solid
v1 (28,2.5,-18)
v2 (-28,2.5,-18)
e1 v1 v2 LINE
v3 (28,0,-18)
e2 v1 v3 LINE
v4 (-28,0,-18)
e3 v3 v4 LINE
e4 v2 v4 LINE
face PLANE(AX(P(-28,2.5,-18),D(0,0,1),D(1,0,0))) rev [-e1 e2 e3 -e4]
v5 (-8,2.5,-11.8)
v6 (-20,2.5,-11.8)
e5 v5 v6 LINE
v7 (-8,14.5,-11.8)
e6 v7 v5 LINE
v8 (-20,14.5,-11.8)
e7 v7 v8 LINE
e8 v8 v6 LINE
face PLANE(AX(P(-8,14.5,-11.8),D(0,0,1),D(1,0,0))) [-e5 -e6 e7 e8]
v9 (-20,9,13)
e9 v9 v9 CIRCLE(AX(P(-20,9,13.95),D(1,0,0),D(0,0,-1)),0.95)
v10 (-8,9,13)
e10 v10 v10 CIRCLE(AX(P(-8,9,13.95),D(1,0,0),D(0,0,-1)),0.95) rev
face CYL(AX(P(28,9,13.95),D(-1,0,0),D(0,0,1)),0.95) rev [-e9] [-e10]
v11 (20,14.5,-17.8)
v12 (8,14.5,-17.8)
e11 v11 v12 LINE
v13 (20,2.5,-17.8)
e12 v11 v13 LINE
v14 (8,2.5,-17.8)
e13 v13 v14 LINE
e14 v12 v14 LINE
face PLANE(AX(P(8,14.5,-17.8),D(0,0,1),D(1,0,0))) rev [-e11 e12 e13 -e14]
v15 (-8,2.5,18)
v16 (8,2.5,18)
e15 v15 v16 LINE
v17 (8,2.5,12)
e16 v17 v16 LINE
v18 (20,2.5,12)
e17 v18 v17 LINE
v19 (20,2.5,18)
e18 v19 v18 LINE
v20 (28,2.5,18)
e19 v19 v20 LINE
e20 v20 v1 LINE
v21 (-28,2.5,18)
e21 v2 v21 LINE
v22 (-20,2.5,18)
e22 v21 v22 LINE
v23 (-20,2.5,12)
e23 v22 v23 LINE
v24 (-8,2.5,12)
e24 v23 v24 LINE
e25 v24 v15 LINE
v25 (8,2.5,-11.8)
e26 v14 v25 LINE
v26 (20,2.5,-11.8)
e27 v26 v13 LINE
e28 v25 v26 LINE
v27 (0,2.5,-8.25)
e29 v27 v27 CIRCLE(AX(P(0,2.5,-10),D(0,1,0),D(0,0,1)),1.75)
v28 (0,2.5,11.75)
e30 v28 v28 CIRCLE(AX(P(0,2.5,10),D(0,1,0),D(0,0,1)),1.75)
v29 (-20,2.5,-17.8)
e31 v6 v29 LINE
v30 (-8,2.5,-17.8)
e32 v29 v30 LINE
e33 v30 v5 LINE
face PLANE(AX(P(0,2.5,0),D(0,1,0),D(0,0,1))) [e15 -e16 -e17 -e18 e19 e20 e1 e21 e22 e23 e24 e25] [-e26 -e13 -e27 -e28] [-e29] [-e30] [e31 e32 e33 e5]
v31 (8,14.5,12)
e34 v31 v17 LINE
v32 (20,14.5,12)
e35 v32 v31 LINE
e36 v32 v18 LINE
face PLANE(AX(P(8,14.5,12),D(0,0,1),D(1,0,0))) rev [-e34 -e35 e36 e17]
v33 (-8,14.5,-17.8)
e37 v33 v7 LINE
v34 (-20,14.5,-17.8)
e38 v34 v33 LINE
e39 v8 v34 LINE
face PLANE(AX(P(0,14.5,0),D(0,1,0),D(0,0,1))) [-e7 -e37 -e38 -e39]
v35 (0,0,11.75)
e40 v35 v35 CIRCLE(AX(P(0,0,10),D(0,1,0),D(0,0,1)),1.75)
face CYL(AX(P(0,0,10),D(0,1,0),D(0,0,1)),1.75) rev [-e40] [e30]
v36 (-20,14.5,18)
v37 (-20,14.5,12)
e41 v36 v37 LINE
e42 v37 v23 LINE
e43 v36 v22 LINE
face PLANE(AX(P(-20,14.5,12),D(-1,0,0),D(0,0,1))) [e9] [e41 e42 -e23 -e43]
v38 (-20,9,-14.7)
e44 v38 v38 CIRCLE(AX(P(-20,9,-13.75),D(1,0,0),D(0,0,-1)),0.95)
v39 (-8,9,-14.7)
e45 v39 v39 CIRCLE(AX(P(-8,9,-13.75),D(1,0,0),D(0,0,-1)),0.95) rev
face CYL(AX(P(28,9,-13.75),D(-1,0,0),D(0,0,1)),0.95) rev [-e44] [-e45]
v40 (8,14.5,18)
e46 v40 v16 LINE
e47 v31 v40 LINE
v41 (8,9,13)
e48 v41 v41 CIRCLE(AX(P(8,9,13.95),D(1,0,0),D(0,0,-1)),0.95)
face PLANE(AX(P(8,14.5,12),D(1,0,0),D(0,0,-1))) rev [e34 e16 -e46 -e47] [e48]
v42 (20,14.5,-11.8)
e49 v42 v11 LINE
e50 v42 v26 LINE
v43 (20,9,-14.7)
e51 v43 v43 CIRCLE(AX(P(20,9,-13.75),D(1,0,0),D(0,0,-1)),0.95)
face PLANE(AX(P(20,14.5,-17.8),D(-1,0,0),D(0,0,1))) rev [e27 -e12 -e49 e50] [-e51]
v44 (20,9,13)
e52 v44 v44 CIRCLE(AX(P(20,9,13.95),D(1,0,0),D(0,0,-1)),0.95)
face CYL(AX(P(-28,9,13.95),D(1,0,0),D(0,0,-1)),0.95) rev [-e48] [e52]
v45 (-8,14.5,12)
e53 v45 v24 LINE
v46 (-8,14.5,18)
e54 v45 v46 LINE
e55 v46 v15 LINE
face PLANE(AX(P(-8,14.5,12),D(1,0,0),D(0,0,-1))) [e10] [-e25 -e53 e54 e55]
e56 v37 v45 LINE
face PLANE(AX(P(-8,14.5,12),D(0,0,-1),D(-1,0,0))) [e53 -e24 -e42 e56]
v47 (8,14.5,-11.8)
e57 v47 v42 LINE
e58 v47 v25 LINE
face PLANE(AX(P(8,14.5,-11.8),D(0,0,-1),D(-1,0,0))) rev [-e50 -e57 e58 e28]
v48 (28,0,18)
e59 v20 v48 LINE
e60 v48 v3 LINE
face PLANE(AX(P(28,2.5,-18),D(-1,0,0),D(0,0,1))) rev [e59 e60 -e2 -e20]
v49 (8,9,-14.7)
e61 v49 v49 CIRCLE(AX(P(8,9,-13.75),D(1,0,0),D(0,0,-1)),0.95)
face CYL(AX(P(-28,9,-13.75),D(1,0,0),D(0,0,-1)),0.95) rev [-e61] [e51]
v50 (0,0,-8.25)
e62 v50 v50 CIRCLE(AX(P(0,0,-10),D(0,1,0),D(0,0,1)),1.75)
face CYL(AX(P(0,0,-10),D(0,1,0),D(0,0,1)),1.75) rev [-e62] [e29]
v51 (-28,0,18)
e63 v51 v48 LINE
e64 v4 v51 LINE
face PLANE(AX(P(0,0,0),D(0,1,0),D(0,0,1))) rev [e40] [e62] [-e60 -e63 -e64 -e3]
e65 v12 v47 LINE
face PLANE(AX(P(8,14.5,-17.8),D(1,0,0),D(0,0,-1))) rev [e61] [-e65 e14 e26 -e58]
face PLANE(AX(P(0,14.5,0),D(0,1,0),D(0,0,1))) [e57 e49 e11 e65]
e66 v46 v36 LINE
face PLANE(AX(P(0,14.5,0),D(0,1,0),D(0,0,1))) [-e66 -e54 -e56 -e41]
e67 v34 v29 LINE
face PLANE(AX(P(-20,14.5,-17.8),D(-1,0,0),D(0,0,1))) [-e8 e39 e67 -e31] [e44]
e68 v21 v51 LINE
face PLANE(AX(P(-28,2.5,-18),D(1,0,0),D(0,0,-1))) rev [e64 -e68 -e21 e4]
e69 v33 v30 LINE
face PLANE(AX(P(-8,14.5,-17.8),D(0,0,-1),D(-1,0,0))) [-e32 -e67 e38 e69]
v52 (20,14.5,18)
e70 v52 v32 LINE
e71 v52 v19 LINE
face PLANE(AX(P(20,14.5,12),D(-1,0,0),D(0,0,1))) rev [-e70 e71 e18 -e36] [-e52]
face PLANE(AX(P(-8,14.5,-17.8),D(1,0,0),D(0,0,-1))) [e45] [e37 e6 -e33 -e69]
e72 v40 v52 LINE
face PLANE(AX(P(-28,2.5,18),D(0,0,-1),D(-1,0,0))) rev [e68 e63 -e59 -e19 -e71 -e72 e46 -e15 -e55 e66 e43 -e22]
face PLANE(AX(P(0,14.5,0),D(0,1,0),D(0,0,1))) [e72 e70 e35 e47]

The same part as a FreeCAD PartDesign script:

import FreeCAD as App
import Part
import Sketcher

V = App.Vector


def add_polygon(sketch, points):
    """Adds a closed chain of lines whose ends are joined by coincident constraints."""
    first, n = sketch.GeometryCount, len(points)
    for a, b in zip(points, points[1:] + points[:1]):
        sketch.addGeometry(Part.LineSegment(App.Vector(*a, 0), App.Vector(*b, 0)), False)
    for i in range(n):
        sketch.addConstraint(Sketcher.Constraint("Coincident", first + i, 2, first + (i + 1) % n, 1))

doc = App.newDocument("Part")
body = doc.addObject("PartDesign::Body", "Body")

# Sketch on XZ plane
sketch1 = body.newObject("Sketcher::SketchObject", "Sketch")
sketch1.AttachmentSupport = (doc.getObject("XZ_Plane"), [""])
sketch1.MapMode = "FlatFace"
add_polygon(sketch1, [(-28, -18), (-28, 18), (28, 18), (28, -18)])  # lines 0-3
sketch1.addConstraint(Sketcher.Constraint("Vertical", 0))
sketch1.addConstraint(Sketcher.Constraint("Horizontal", 1))
sketch1.addConstraint(Sketcher.Constraint("Vertical", 2))
sketch1.addConstraint(Sketcher.Constraint("Horizontal", 3))
sketch1.addConstraint(Sketcher.Constraint("Symmetric", 0, 2, 2, 2, -1, 1))
sketch1.addConstraint(Sketcher.Constraint("DistanceX", 1, 1, 1, 2, 56.0))
sketch1.addConstraint(Sketcher.Constraint("DistanceY", 0, 1, 0, 2, 36.0))
pad1 = body.newObject("PartDesign::Pad", "Pad")
pad1.Profile = sketch1
pad1.Length = 2.5
pad1.Reversed = True

# Sketch on XZ plane
sketch2 = body.newObject("Sketcher::SketchObject", "Sketch001")
sketch2.AttachmentSupport = (doc.getObject("XZ_Plane"), [""])
sketch2.MapMode = "FlatFace"
sketch2.AttachmentOffset = App.Placement(V(0, 0, -2.5), App.Rotation())
add_polygon(sketch2, [(8, -17.8), (8, -11.8), (20, -11.8), (20, -17.8)])  # lines 0-3
add_polygon(sketch2, [(8, 12), (8, 18), (20, 18), (20, 12)])  # lines 4-7
sketch2.addConstraint(Sketcher.Constraint("Vertical", 0))
sketch2.addConstraint(Sketcher.Constraint("Horizontal", 1))
sketch2.addConstraint(Sketcher.Constraint("Vertical", 2))
sketch2.addConstraint(Sketcher.Constraint("Horizontal", 3))
sketch2.addConstraint(Sketcher.Constraint("Vertical", 4))
sketch2.addConstraint(Sketcher.Constraint("Horizontal", 5))
sketch2.addConstraint(Sketcher.Constraint("Vertical", 6))
sketch2.addConstraint(Sketcher.Constraint("Horizontal", 7))
sketch2.addConstraint(Sketcher.Constraint("Vertical", 3, 2, 4, 2))
sketch2.addConstraint(Sketcher.Constraint("Vertical", 2, 2, 5, 2))
sketch2.addConstraint(Sketcher.Constraint("Equal", 2, 4))
sketch2.addConstraint(Sketcher.Constraint("DistanceX", 1, 1, 1, 2, 12.0))
sketch2.addConstraint(Sketcher.Constraint("DistanceY", 0, 1, 0, 2, 6.0))
sketch2.addConstraint(Sketcher.Constraint("DistanceX", -1, 1, 0, 2, 8.0))
sketch2.addConstraint(Sketcher.Constraint("DistanceY", -1, 1, 4, 2, 18.0))
sketch2.addConstraint(Sketcher.Constraint("DistanceY", 0, 2, -1, 1, 11.8))
pad2 = body.newObject("PartDesign::Pad", "Pad001")
pad2.Profile = sketch2
pad2.Length = 12
pad2.Reversed = True

# Sketch on YZ plane
sketch3 = body.newObject("Sketcher::SketchObject", "Sketch002")
sketch3.AttachmentSupport = (doc.getObject("YZ_Plane"), [""])
sketch3.MapMode = "FlatFace"
sketch3.AttachmentOffset = App.Placement(V(0, 0, 20), App.Rotation())
sketch3.addGeometry(Part.Circle(V(9, 13.95, 0), V(0, 0, 1), 0.95), False)
sketch3.addGeometry(Part.Circle(V(9, -13.75, 0), V(0, 0, 1), 0.95), False)
sketch3.addConstraint(Sketcher.Constraint("Equal", 0, 1))
sketch3.addConstraint(Sketcher.Constraint("Vertical", 0, 3, 1, 3))
sketch3.addConstraint(Sketcher.Constraint("Diameter", 0, 1.9))
sketch3.addConstraint(Sketcher.Constraint("DistanceX", -1, 1, 0, 3, 9.0))
sketch3.addConstraint(Sketcher.Constraint("DistanceY", 1, 3, 0, 3, 27.7))
sketch3.addConstraint(Sketcher.Constraint("DistanceY", -1, 1, 0, 3, 13.95))
pocket1 = body.newObject("PartDesign::Pocket", "Pocket")
pocket1.Profile = sketch3
pocket1.Type = "ThroughAll"
doc.recompute()

mirrored = body.newObject("PartDesign::Mirrored", "Mirrored")
mirrored.Originals = [pad2, pocket1]
mirrored.MirrorPlane = (doc.getObject("YZ_Plane"), [""])
body.Tip = mirrored

# Sketch on XZ plane
sketch4 = body.newObject("Sketcher::SketchObject", "Sketch003")
sketch4.AttachmentSupport = (doc.getObject("XZ_Plane"), [""])
sketch4.MapMode = "FlatFace"
sketch4.AttachmentOffset = App.Placement(V(0, 0, -2.5), App.Rotation())
sketch4.addGeometry(Part.Circle(V(0, 10, 0), V(0, 0, 1), 1.75), False)
sketch4.addGeometry(Part.Circle(V(0, -10, 0), V(0, 0, 1), 1.75), False)
sketch4.addConstraint(Sketcher.Constraint("Equal", 0, 1))
sketch4.addConstraint(Sketcher.Constraint("Symmetric", 0, 3, 1, 3, -1, 1))
sketch4.addConstraint(Sketcher.Constraint("PointOnObject", 0, 3, -2))
sketch4.addConstraint(Sketcher.Constraint("Diameter", 0, 3.5))
sketch4.addConstraint(Sketcher.Constraint("DistanceY", -1, 1, 0, 3, 10.0))
pocket2 = body.newObject("PartDesign::Pocket", "Pocket001")
pocket2.Profile = sketch4
pocket2.Type = "ThroughAll"
pocket2.Reversed = True

doc.recompute()
